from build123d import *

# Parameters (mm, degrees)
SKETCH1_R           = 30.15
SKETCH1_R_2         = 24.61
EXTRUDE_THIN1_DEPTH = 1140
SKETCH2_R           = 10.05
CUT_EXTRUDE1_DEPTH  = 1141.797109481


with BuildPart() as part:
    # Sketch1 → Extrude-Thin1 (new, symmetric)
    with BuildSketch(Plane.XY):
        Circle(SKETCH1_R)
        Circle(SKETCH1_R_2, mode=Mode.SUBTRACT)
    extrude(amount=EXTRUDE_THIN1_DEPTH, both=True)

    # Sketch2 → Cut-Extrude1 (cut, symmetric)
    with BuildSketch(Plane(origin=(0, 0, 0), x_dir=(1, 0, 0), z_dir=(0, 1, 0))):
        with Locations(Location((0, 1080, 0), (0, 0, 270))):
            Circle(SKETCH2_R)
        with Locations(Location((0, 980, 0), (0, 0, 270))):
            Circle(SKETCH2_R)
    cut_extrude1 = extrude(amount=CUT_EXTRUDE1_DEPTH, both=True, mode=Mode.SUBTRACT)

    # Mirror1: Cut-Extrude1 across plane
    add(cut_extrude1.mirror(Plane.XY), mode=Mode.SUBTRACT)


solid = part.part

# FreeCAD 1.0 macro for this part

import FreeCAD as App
import Part
import Sketcher
from FreeCAD import Vector
Q = App.Units.Quantity

doc = App.newDocument("Part")
params = doc.addObject("Spreadsheet::Sheet", "Params")
for row, (alias, value) in enumerate([
    ("sketch1_diameter", "60.3 mm"),
    ("sketch1_diameter2", "49.22 mm"),
    ("pad1_length", "2280 mm"),
    ("sketch2_diameter", "20.1 mm"),
    ("pocket1_length", "2283.594219 mm"),
], start=1):
    params.set(f"A{row}", alias)
    params.set(f"B{row}", "=" + value)
    params.setAlias(f"B{row}", alias)

body = doc.addObject("PartDesign::Body", "Body")

# Sketch on XY plane
sketch1 = doc.addObject("Sketcher::SketchObject", "Sketch")
body.addObject(sketch1)
sketch1.AttachmentSupport = (doc.XY_Plane, [""])
sketch1.MapMode = "FlatFace"
sketch1.addGeometry([
    Part.Circle(Vector(0, 0, 0), Vector(0, 0, 1), 30),
    Part.Circle(Vector(0, 0, 0), Vector(0, 0, 1), 25),
], False)
sketch1.addConstraint([
    Sketcher.Constraint("Coincident", 0, 3, -1, 1),
    Sketcher.Constraint("Coincident", 1, 3, -1, 1),
    Sketcher.Constraint("Diameter", 0, Q("60.3 mm")),
    Sketcher.Constraint("Diameter", 1, Q("49.22 mm")),
])
sketch1.setExpression("Constraints[2]", "Params.sketch1_diameter")
sketch1.setExpression("Constraints[3]", "Params.sketch1_diameter2")
pad1 = doc.addObject("PartDesign::Pad", "Pad")
body.addObject(pad1)
pad1.Profile = sketch1
pad1.setExpression("Length", "Params.pad1_length")
pad1.Midplane = True

# Sketch on XZ plane
sketch2 = doc.addObject("Sketcher::SketchObject", "Sketch001")
body.addObject(sketch2)
sketch2.AttachmentSupport = (doc.XZ_Plane, [""])
sketch2.MapMode = "FlatFace"
sketch2.addGeometry([
    Part.Circle(Vector(0, -1080, 0), Vector(0, 0, 1), 10),
    Part.Circle(Vector(0, -980, 0), Vector(0, 0, 1), 10),
], False)
sketch2.addConstraint([
    Sketcher.Constraint("Equal", 0, 1),
    Sketcher.Constraint("PointOnObject", 0, 3, -2),
    Sketcher.Constraint("PointOnObject", 1, 3, -2),
    Sketcher.Constraint("Diameter", 0, Q("20.1 mm")),
    Sketcher.Constraint("DistanceY", 0, 3, -1, 1, Q("1080 mm")),
    Sketcher.Constraint("DistanceY", 1, 3, -1, 1, Q("980 mm")),
])
sketch2.setExpression("Constraints[3]", "Params.sketch2_diameter")
pocket1 = doc.addObject("PartDesign::Pocket", "Pocket")
body.addObject(pocket1)
pocket1.Profile = sketch2
pocket1.setExpression("Length", "Params.pocket1_length")
pocket1.Midplane = True
doc.recompute()

mirrored = doc.addObject("PartDesign::Mirrored", "Mirrored")
body.addObject(mirrored)
mirrored.Originals = [pocket1]
mirrored.MirrorPlane = (doc.XY_Plane, [""])
body.Tip = mirrored

doc.recompute()
